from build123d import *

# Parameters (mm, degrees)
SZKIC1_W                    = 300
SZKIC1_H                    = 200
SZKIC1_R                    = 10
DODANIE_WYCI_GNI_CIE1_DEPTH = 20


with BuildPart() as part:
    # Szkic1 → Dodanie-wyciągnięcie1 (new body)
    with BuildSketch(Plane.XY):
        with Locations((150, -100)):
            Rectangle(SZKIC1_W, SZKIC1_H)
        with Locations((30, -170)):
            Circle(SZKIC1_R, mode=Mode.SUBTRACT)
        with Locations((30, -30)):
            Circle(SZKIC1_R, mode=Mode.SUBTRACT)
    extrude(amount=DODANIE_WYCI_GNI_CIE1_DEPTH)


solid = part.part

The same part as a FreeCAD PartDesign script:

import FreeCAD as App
import Part
import Sketcher
Q = App.Units.Quantity


def add_polygon(sketch, points):
    """Adds a closed chain of lines whose ends are joined by coincident constraints."""
    first, n = sketch.GeometryCount, len(points)
    for a, b in zip(points, points[1:] + points[:1]):
        sketch.addGeometry(Part.LineSegment(App.Vector(*a, 0), App.Vector(*b, 0)), False)
    for i in range(n):
        sketch.addConstraint(Sketcher.Constraint("Coincident", first + i, 2, first + (i + 1) % n, 1))

doc = App.newDocument("Part")
params = doc.addObject("Spreadsheet::Sheet", "Params")
for row, (alias, value) in enumerate([
    ("sketch1_diameter", "20 mm"),
    ("sketch1_width", "300 mm"),
    ("sketch1_height", "200 mm"),
    ("pad1_length", "20 mm"),
], start=1):
    params.set(f"A{row}", alias)
    params.set(f"B{row}", "=" + value)
    params.setAlias(f"B{row}", alias)

body = doc.addObject("PartDesign::Body", "Body")

sketch1 = body.newObject("Sketcher::SketchObject", "Sketch")
sketch1.AttachmentSupport = (doc.getObject("XY_Plane"), [""])
sketch1.MapMode = "FlatFace"
add_polygon(sketch1, [(0, 0), (0, -200), (300, -200), (300, 0)])
sketch1.addGeometry(Part.Circle(App.Vector(30, -170, 0), App.Vector(0, 0, 1), 10), False)
sketch1.addGeometry(Part.Circle(App.Vector(30, -30, 0), App.Vector(0, 0, 1), 10), False)
sketch1.addConstraint([
    Sketcher.Constraint("Vertical", 0),
    Sketcher.Constraint("Horizontal", 1),
    Sketcher.Constraint("Vertical", 2),
    Sketcher.Constraint("Horizontal", 3),
    Sketcher.Constraint("Coincident", 3, 2, -1, 1),
    Sketcher.Constraint("Equal", 4, 5),
    Sketcher.Constraint("Vertical", 4, 3, 5, 3),
    Sketcher.Constraint("Diameter", 4, Q("20 mm")),
    Sketcher.Constraint("DistanceX", 1, 1, 1, 2, Q("300 mm")),
    Sketcher.Constraint("DistanceY", 0, 2, 0, 1, Q("200 mm")),
    Sketcher.Constraint("DistanceX", -1, 1, 4, 3, Q("30 mm")),
    Sketcher.Constraint("DistanceY", 4, 3, -1, 1, Q("170 mm")),
    Sketcher.Constraint("DistanceY", 5, 3, -1, 1, Q("30 mm")),
])
sketch1.setExpression("Constraints[11]", "Params.sketch1_diameter")
sketch1.setExpression("Constraints[12]", "Params.sketch1_width")
sketch1.setExpression("Constraints[13]", "Params.sketch1_height")
pad1 = body.newObject("PartDesign::Pad", "Pad")
pad1.Profile = sketch1
pad1.setExpression("Length", "Params.pad1_length")

doc.recompute()
